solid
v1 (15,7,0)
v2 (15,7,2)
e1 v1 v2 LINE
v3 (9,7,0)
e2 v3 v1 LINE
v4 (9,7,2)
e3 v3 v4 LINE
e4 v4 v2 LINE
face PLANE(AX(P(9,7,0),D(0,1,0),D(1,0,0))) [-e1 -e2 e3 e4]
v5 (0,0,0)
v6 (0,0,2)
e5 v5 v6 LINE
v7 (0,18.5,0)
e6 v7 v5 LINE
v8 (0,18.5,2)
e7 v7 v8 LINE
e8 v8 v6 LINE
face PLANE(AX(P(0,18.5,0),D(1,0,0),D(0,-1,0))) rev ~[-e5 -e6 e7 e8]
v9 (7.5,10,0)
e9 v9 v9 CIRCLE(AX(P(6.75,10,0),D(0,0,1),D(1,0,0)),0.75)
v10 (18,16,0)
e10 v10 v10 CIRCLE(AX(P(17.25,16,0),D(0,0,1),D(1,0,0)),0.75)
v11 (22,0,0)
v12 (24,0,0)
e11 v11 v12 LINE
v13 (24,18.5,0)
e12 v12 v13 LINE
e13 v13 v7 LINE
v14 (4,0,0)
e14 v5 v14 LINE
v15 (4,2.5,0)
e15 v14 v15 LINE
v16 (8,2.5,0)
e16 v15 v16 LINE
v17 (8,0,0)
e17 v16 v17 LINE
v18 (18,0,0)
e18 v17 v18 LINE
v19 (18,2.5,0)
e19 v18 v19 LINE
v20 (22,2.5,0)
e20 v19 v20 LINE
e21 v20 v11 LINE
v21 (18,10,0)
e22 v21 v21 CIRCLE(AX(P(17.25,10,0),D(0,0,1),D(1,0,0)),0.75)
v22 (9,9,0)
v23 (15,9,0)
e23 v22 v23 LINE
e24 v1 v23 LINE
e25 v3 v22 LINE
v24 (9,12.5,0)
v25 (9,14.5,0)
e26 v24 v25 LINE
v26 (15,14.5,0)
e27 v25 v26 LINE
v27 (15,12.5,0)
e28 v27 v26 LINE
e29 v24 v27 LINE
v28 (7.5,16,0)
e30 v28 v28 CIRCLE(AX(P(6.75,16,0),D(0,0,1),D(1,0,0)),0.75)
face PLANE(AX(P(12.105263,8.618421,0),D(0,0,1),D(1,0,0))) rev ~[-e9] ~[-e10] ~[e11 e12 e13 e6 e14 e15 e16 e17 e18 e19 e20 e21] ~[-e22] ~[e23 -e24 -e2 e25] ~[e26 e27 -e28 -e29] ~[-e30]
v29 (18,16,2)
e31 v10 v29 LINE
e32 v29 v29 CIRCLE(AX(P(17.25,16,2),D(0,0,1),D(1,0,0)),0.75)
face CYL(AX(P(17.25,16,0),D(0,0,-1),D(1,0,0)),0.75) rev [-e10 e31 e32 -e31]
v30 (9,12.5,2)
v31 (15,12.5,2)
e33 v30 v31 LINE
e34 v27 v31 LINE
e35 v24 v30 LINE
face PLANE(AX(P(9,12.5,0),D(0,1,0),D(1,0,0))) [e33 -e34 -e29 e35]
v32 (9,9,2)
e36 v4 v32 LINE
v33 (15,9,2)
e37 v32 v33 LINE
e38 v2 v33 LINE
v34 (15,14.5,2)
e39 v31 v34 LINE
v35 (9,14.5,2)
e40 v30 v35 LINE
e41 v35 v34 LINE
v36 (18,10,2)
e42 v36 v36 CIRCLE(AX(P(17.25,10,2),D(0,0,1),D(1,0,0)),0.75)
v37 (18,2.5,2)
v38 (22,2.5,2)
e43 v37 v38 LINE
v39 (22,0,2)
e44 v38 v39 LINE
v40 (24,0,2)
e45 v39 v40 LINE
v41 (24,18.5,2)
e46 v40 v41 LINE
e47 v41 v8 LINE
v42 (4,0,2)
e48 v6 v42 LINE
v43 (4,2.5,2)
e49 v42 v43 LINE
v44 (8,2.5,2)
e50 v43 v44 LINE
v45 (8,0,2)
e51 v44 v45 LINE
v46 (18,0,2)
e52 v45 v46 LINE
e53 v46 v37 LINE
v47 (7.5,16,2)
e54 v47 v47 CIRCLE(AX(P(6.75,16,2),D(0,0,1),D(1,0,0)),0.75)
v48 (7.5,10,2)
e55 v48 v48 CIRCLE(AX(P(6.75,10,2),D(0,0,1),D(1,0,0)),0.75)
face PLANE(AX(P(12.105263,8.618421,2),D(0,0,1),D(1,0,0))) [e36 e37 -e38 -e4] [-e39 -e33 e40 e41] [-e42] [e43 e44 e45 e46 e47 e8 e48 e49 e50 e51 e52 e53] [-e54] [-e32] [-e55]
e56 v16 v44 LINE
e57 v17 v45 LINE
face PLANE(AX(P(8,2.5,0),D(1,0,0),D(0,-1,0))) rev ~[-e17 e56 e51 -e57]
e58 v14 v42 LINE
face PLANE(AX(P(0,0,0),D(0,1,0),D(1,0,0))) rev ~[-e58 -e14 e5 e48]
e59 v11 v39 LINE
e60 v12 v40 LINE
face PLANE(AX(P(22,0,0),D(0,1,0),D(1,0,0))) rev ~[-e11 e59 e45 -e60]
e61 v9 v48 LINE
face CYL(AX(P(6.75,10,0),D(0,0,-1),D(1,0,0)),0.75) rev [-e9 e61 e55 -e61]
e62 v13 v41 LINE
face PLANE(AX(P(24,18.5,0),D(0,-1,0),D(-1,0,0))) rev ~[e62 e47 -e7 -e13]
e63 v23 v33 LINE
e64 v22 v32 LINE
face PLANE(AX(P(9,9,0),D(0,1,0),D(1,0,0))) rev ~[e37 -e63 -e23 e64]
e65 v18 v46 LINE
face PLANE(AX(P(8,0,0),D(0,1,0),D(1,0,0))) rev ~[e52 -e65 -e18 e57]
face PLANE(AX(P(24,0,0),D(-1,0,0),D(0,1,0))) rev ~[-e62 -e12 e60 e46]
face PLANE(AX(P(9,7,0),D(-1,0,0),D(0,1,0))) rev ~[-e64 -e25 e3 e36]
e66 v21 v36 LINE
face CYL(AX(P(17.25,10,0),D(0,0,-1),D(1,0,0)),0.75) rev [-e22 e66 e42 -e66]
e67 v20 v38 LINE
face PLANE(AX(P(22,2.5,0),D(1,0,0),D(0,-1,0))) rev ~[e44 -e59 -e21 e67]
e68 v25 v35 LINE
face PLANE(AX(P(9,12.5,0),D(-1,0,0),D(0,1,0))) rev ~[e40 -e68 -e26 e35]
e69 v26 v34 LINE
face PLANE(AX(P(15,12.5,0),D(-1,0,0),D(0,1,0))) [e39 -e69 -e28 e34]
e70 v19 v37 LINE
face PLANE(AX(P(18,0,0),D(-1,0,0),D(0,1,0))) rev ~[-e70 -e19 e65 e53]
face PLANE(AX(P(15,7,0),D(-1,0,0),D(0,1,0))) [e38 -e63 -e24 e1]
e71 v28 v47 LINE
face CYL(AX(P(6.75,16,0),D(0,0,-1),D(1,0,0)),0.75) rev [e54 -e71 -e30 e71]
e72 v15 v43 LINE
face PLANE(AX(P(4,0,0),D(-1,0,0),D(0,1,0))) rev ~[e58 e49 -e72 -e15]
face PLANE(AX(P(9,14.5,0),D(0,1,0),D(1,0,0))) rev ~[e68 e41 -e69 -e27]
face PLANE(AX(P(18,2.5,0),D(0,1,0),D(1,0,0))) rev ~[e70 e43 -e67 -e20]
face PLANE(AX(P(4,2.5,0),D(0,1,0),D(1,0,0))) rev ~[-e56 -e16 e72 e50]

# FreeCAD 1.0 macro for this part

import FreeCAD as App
import Part
import Sketcher

doc = App.newDocument("Part")
body = doc.addObject("PartDesign::Body", "Body")

# Sketch on XY plane
sketch1 = body.newObject("Sketcher::SketchObject", "Sketch")
sketch1.AttachmentSupport = (doc.getObject("XY_Plane"), [""])
sketch1.MapMode = "FlatFace"
sketch1.addGeometry([
    Part.LineSegment(App.Vector(4, 2.5, 0), App.Vector(8, 2.5, 0)),  # 0
    Part.LineSegment(App.Vector(8, 2.5, 0), App.Vector(8, 0, 0)),  # 1
    Part.LineSegment(App.Vector(8, 0, 0), App.Vector(18, 0, 0)),  # 2
    Part.LineSegment(App.Vector(18, 0, 0), App.Vector(18, 2.5, 0)),  # 3
    Part.LineSegment(App.Vector(18, 2.5, 0), App.Vector(22, 2.5, 0)),  # 4
    Part.LineSegment(App.Vector(22, 2.5, 0), App.Vector(22, 0, 0)),  # 5
    Part.LineSegment(App.Vector(22, 0, 0), App.Vector(24, 0, 0)),  # 6
    Part.LineSegment(App.Vector(24, 0, 0), App.Vector(24, 18.5, 0)),  # 7
    Part.LineSegment(App.Vector(24, 18.5, 0), App.Vector(0, 18.5, 0)),  # 8
    Part.LineSegment(App.Vector(0, 18.5, 0), App.Vector(0, 0, 0)),  # 9
    Part.LineSegment(App.Vector(0, 0, 0), App.Vector(4, 0, 0)),  # 10
    Part.LineSegment(App.Vector(4, 0, 0), App.Vector(4, 2.5, 0)),  # 11
    Part.Circle(App.Vector(6.8, 10, 0), App.Vector(0, 0, 1), 0.8),  # 12
    Part.LineSegment(App.Vector(15, 7, 0), App.Vector(9, 7, 0)),  # 13
    Part.LineSegment(App.Vector(9, 7, 0), App.Vector(9, 9, 0)),  # 14
    Part.LineSegment(App.Vector(9, 9, 0), App.Vector(15, 9, 0)),  # 15
    Part.LineSegment(App.Vector(15, 9, 0), App.Vector(15, 7, 0)),  # 16
    Part.Circle(App.Vector(17.2, 10, 0), App.Vector(0, 0, 1), 0.8),  # 17
    Part.Circle(App.Vector(6.8, 16, 0), App.Vector(0, 0, 1), 0.8),  # 18
    Part.LineSegment(App.Vector(15, 12.5, 0), App.Vector(9, 12.5, 0)),  # 19
    Part.LineSegment(App.Vector(9, 12.5, 0), App.Vector(9, 14.5, 0)),  # 20
    Part.LineSegment(App.Vector(9, 14.5, 0), App.Vector(15, 14.5, 0)),  # 21
    Part.LineSegment(App.Vector(15, 14.5, 0), App.Vector(15, 12.5, 0)),  # 22
    Part.Circle(App.Vector(17.2, 16, 0), App.Vector(0, 0, 1), 0.8),  # 23
], False)
sketch1.addConstraint([
    Sketcher.Constraint("Coincident", 0, 2, 1, 1),
    Sketcher.Constraint("Coincident", 1, 2, 2, 1),
    Sketcher.Constraint("Coincident", 2, 2, 3, 1),
    Sketcher.Constraint("Coincident", 3, 2, 4, 1),
    Sketcher.Constraint("Coincident", 4, 2, 5, 1),
    Sketcher.Constraint("Coincident", 5, 2, 6, 1),
    Sketcher.Constraint("Coincident", 6, 2, 7, 1),
    Sketcher.Constraint("Coincident", 7, 2, 8, 1),
    Sketcher.Constraint("Coincident", 8, 2, 9, 1),
    Sketcher.Constraint("Coincident", 9, 2, 10, 1),
    Sketcher.Constraint("Coincident", 10, 2, 11, 1),
    Sketcher.Constraint("Coincident", 11, 2, 0, 1),
    Sketcher.Constraint("Coincident", 13, 2, 14, 1),
    Sketcher.Constraint("Coincident", 14, 2, 15, 1),
    Sketcher.Constraint("Coincident", 15, 2, 16, 1),
    Sketcher.Constraint("Coincident", 16, 2, 13, 1),
    Sketcher.Constraint("Coincident", 19, 2, 20, 1),
    Sketcher.Constraint("Coincident", 20, 2, 21, 1),
    Sketcher.Constraint("Coincident", 21, 2, 22, 1),
    Sketcher.Constraint("Coincident", 22, 2, 19, 1),
    Sketcher.Constraint("Horizontal", 0),
    Sketcher.Constraint("Vertical", 1),
    Sketcher.Constraint("Horizontal", 2),
    Sketcher.Constraint("Vertical", 3),
    Sketcher.Constraint("Horizontal", 4),
    Sketcher.Constraint("Vertical", 5),
    Sketcher.Constraint("Horizontal", 6),
    Sketcher.Constraint("Vertical", 7),
    Sketcher.Constraint("Horizontal", 8),
    Sketcher.Constraint("Vertical", 9),
    Sketcher.Constraint("Horizontal", 10),
    Sketcher.Constraint("Vertical", 11),
    Sketcher.Constraint("Horizontal", 13),
    Sketcher.Constraint("Vertical", 14),
    Sketcher.Constraint("Horizontal", 15),
    Sketcher.Constraint("Vertical", 16),
    Sketcher.Constraint("Horizontal", 19),
    Sketcher.Constraint("Vertical", 20),
    Sketcher.Constraint("Horizontal", 21),
    Sketcher.Constraint("Vertical", 22),
    Sketcher.Constraint("Coincident", 9, 2, -1, 1),
    Sketcher.Constraint("Equal", 12, 17),
    Sketcher.Constraint("Equal", 17, 18),
    Sketcher.Constraint("Equal", 18, 23),
    Sketcher.Constraint("PointOnObject", 1, 2, -1),
    Sketcher.Constraint("PointOnObject", 5, 2, -1),
    Sketcher.Constraint("Horizontal", 12, 3, 17, 3),
    Sketcher.Constraint("Horizontal", 18, 3, 23, 3),
    Sketcher.Constraint("Horizontal", 0, 2, 3, 2),
    Sketcher.Constraint("Vertical", 12, 3, 18, 3),
    Sketcher.Constraint("Vertical", 17, 3, 23, 3),
    Sketcher.Constraint("Vertical", 14, 2, 19, 2),
    Sketcher.Constraint("Vertical", 16, 2, 21, 2),
    Sketcher.Constraint("Equal", 0, 4),
    Sketcher.Constraint("Equal", 4, 10),
    Sketcher.Constraint("Equal", 6, 14),
    Sketcher.Constraint("Equal", 16, 20),
    Sketcher.Constraint("Diameter", 12, 1.5),
    Sketcher.Constraint("DistanceX", 0, 1, 0, 2, 4.0),
    Sketcher.Constraint("DistanceX", 2, 1, 2, 2, 10.0),
    Sketcher.Constraint("DistanceX", 6, 1, 6, 2, 2.0),
    Sketcher.Constraint("DistanceX", 13, 2, 13, 1, 6.0),
    Sketcher.Constraint("DistanceY", 1, 2, 1, 1, 2.5),
    Sketcher.Constraint("DistanceY", 7, 1, 7, 2, 18.5),
    Sketcher.Constraint("DistanceY", -1, 1, 12, 3, 10.0),
    Sketcher.Constraint("DistanceY", -1, 1, 18, 3, 16.0),
    Sketcher.Constraint("DistanceX", -1, 1, 13, 2, 9.0),
    Sketcher.Constraint("DistanceY", -1, 1, 13, 2, 7.0),
    Sketcher.Constraint("DistanceY", -1, 1, 19, 2, 12.5),
    Sketcher.Constraint("DistanceX", 12, 3, 17, 3, 10.5),
    Sketcher.Constraint("DistanceX", -1, 1, 12, 3, 6.75),
])
pad1 = body.newObject("PartDesign::Pad", "Pad")
pad1.Profile = sketch1
pad1.Length = 2

doc.recompute()
